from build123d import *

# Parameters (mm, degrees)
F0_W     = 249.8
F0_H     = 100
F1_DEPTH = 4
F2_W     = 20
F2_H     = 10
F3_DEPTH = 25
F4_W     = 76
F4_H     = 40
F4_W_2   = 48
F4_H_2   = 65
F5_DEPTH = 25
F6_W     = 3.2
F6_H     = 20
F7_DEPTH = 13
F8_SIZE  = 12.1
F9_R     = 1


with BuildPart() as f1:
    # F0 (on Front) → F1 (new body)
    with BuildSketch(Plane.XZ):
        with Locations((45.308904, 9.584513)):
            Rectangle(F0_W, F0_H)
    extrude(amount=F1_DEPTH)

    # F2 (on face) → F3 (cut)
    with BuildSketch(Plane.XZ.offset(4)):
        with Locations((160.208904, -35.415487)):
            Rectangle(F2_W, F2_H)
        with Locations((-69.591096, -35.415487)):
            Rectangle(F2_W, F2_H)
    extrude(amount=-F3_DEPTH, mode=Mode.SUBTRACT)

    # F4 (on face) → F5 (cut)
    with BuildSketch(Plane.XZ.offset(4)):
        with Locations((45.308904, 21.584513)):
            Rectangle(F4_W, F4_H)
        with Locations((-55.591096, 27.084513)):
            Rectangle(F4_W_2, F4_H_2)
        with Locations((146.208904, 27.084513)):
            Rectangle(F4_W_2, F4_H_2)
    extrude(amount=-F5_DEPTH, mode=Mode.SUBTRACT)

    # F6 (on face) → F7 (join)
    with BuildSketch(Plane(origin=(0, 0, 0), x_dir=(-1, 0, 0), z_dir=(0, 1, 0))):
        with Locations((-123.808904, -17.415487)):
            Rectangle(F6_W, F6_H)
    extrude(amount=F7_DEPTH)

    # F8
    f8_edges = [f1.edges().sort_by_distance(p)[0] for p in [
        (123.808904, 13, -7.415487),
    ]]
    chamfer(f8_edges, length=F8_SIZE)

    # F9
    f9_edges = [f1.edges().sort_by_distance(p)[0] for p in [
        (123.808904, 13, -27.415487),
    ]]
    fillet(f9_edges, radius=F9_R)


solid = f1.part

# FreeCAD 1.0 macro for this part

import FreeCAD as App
import Part
import Sketcher
from FreeCAD import Vector
Q = App.Units.Quantity


def edges_at(feature, points):
    """Names of the edges that pass closest to the given points."""
    edges = feature.Shape.Edges
    near = lambda p: min(range(len(edges)), key=lambda i: edges[i].distToShape(Part.Vertex(*p))[0])
    return sorted({f"Edge{near(p) + 1}" for p in points})


def add_polygon(sketch, points):
    """Adds a closed chain of lines whose ends are joined by coincident constraints."""
    first, n = sketch.GeometryCount, len(points)
    for a, b in zip(points, points[1:] + points[:1]):
        sketch.addGeometry(Part.LineSegment(App.Vector(*a, 0), App.Vector(*b, 0)), False)
    for i in range(n):
        sketch.addConstraint(Sketcher.Constraint("Coincident", first + i, 2, first + (i + 1) % n, 1))

doc = App.newDocument("Part")
params = doc.addObject("Spreadsheet::Sheet", "Params")
for row, (alias, value) in enumerate([
    ("sketch1_height", "100 mm"),
    ("sketch1_width", "249.8 mm"),
    ("pad1_length", "4 mm"),
    ("sketch2_width", "20 mm"),
    ("sketch2_height", "10 mm"),
    ("pocket1_length", "25 mm"),
    ("sketch3_width", "76 mm"),
    ("sketch3_width2", "48 mm"),
    ("sketch3_height", "40 mm"),
    ("sketch3_height2", "65 mm"),
    ("pocket2_length", "25 mm"),
    ("sketch4_height", "20 mm"),
    ("sketch4_width", "3.2 mm"),
    ("pad2_length", "13 mm"),
    ("chamfer_size", "12.1 mm"),
    ("fillet_radius", "1 mm"),
], start=1):
    params.set(f"A{row}", alias)
    params.set(f"B{row}", "=" + value)
    params.setAlias(f"B{row}", alias)

body = doc.addObject("PartDesign::Body", "Body")

# Sketch on XZ plane
sketch1 = body.newObject("Sketcher::SketchObject", "Sketch")
sketch1.AttachmentSupport = (doc.getObject("XZ_Plane"), [""])
sketch1.MapMode = "FlatFace"
add_polygon(sketch1, [(-80, 60), (-80, -40), (170, -40), (170, 60)])  # lines 0-3
sketch1.addConstraint([
    Sketcher.Constraint("Vertical", 0),
    Sketcher.Constraint("Horizontal", 1),
    Sketcher.Constraint("Vertical", 2),
    Sketcher.Constraint("Horizontal", 3),
    Sketcher.Constraint("DistanceY", 0, 2, 0, 1, Q("100 mm")),
    Sketcher.Constraint("DistanceX", 1, 1, 1, 2, Q("249.8 mm")),
    Sketcher.Constraint("DistanceX", 0, 2, -1, 1, Q("79.591096 mm")),
    Sketcher.Constraint("DistanceY", 0, 2, -1, 1, Q("40.415487 mm")),
])
sketch1.setExpression("Constraints[8]", "Params.sketch1_height")
sketch1.setExpression("Constraints[9]", "Params.sketch1_width")
pad1 = body.newObject("PartDesign::Pad", "Pad")
pad1.Profile = sketch1
pad1.setExpression("Length", "Params.pad1_length")

# Sketch on XZ plane
sketch2 = body.newObject("Sketcher::SketchObject", "Sketch001")
sketch2.AttachmentSupport = (doc.getObject("XZ_Plane"), [""])
sketch2.MapMode = "FlatFace"
sketch2.AttachmentOffset = App.Placement(Vector(0, 0, 4), App.Rotation())
add_polygon(sketch2, [(150, -30), (150, -40), (170, -40), (170, -30)])  # lines 0-3
add_polygon(sketch2, [(-80, -30), (-80, -40), (-60, -40), (-60, -30)])  # lines 4-7
sketch2.addConstraint([
    Sketcher.Constraint("Vertical", 0),
    Sketcher.Constraint("Horizontal", 1),
    Sketcher.Constraint("Vertical", 2),
    Sketcher.Constraint("Horizontal", 3),
    Sketcher.Constraint("Vertical", 4),
    Sketcher.Constraint("Horizontal", 5),
    Sketcher.Constraint("Vertical", 6),
    Sketcher.Constraint("Horizontal", 7),
    Sketcher.Constraint("Horizontal", 1, 2, 4, 2),
    Sketcher.Constraint("Horizontal", 3, 2, 6, 2),
    Sketcher.Constraint("Equal", 3, 5),
    Sketcher.Constraint("DistanceX", 1, 1, 1, 2, Q("20 mm")),
    Sketcher.Constraint("DistanceY", 0, 2, 0, 1, Q("10 mm")),
    Sketcher.Constraint("DistanceX", 4, 2, 0, 2, Q("229.8 mm")),
    Sketcher.Constraint("DistanceX", -1, 1, 0, 2, Q("150.208904 mm")),
    Sketcher.Constraint("DistanceY", 0, 2, -1, 1, Q("40.415487 mm")),
])
sketch2.setExpression("Constraints[19]", "Params.sketch2_width")
sketch2.setExpression("Constraints[20]", "Params.sketch2_height")
pocket1 = body.newObject("PartDesign::Pocket", "Pocket")
pocket1.Profile = sketch2
pocket1.setExpression("Length", "Params.pocket1_length")

# Sketch on XZ plane
sketch3 = body.newObject("Sketcher::SketchObject", "Sketch002")
sketch3.AttachmentSupport = (doc.getObject("XZ_Plane"), [""])
sketch3.MapMode = "FlatFace"
sketch3.AttachmentOffset = App.Placement(Vector(0, 0, 4), App.Rotation())
add_polygon(sketch3, [(7, 42), (7, 2), (83, 2), (83, 42)])  # lines 0-3
add_polygon(sketch3, [(-80, 60), (-80, -5), (-32, -5), (-32, 60)])  # lines 4-7
add_polygon(sketch3, [(122, 60), (122, -5), (170, -5), (170, 60)])  # lines 8-11
sketch3.addConstraint([
    Sketcher.Constraint("Vertical", 0),
    Sketcher.Constraint("Horizontal", 1),
    Sketcher.Constraint("Vertical", 2),
    Sketcher.Constraint("Horizontal", 3),
    Sketcher.Constraint("Vertical", 4),
    Sketcher.Constraint("Horizontal", 5),
    Sketcher.Constraint("Vertical", 6),
    Sketcher.Constraint("Horizontal", 7),
    Sketcher.Constraint("Vertical", 8),
    Sketcher.Constraint("Horizontal", 9),
    Sketcher.Constraint("Vertical", 10),
    Sketcher.Constraint("Horizontal", 11),
    Sketcher.Constraint("Horizontal", 5, 2, 8, 2),
    Sketcher.Constraint("Horizontal", 7, 2, 10, 2),
    Sketcher.Constraint("Equal", 7, 9),
    Sketcher.Constraint("DistanceX", 1, 1, 1, 2, Q("76 mm")),
    Sketcher.Constraint("DistanceX", 5, 1, 5, 2, Q("48 mm")),
    Sketcher.Constraint("DistanceY", 0, 2, 0, 1, Q("40 mm")),
    Sketcher.Constraint("DistanceY", 4, 2, 4, 1, Q("65 mm")),
    Sketcher.Constraint("DistanceY", 4, 2, 0, 2, Q("7 mm")),
    Sketcher.Constraint("DistanceX", 4, 2, 0, 2, Q("86.9 mm")),
    Sketcher.Constraint("DistanceX", 1, 2, 8, 2, Q("38.9 mm")),
    Sketcher.Constraint("DistanceX", -1, 1, 0, 2, Q("7.308904 mm")),
    Sketcher.Constraint("DistanceY", -1, 1, 0, 2, Q("1.584513 mm")),
])
sketch3.setExpression("Constraints[27]", "Params.sketch3_width")
sketch3.setExpression("Constraints[28]", "Params.sketch3_width2")
sketch3.setExpression("Constraints[29]", "Params.sketch3_height")
sketch3.setExpression("Constraints[30]", "Params.sketch3_height2")
pocket2 = body.newObject("PartDesign::Pocket", "Pocket001")
pocket2.Profile = sketch3
pocket2.setExpression("Length", "Params.pocket2_length")

# Sketch on XZ plane
sketch4 = body.newObject("Sketcher::SketchObject", "Sketch003")
sketch4.AttachmentSupport = (doc.getObject("XZ_Plane"), [""])
sketch4.MapMode = "FlatFace"
add_polygon(sketch4, [(125.4, -7.4), (125.4, -27.4), (122.2, -27.4), (122.2, -7.4)])  # lines 0-3
sketch4.addConstraint([
    Sketcher.Constraint("Vertical", 0),
    Sketcher.Constraint("Horizontal", 1),
    Sketcher.Constraint("Vertical", 2),
    Sketcher.Constraint("Horizontal", 3),
    Sketcher.Constraint("DistanceY", 0, 2, 0, 1, Q("20 mm")),
    Sketcher.Constraint("DistanceX", 1, 2, 1, 1, Q("3.2 mm")),
    Sketcher.Constraint("DistanceX", -1, 1, 0, 2, Q("125.408904 mm")),
    Sketcher.Constraint("DistanceY", 0, 2, -1, 1, Q("27.415487 mm")),
])
sketch4.setExpression("Constraints[8]", "Params.sketch4_height")
sketch4.setExpression("Constraints[9]", "Params.sketch4_width")
pad2 = body.newObject("PartDesign::Pad", "Pad001")
pad2.Profile = sketch4
pad2.setExpression("Length", "Params.pad2_length")
pad2.Reversed = True
doc.recompute()

chamfer = body.newObject("PartDesign::Chamfer", "Chamfer")
chamfer.Base = (pad2, edges_at(pad2, [(123.809, 13, -7.415)]))
chamfer.setExpression("Size", "Params.chamfer_size")
doc.recompute()

fillet = body.newObject("PartDesign::Fillet", "Fillet")
fillet.Base = (chamfer, edges_at(chamfer, [(123.809, 13, -27.415)]))
fillet.setExpression("Radius", "Params.fillet_radius")

doc.recompute()
